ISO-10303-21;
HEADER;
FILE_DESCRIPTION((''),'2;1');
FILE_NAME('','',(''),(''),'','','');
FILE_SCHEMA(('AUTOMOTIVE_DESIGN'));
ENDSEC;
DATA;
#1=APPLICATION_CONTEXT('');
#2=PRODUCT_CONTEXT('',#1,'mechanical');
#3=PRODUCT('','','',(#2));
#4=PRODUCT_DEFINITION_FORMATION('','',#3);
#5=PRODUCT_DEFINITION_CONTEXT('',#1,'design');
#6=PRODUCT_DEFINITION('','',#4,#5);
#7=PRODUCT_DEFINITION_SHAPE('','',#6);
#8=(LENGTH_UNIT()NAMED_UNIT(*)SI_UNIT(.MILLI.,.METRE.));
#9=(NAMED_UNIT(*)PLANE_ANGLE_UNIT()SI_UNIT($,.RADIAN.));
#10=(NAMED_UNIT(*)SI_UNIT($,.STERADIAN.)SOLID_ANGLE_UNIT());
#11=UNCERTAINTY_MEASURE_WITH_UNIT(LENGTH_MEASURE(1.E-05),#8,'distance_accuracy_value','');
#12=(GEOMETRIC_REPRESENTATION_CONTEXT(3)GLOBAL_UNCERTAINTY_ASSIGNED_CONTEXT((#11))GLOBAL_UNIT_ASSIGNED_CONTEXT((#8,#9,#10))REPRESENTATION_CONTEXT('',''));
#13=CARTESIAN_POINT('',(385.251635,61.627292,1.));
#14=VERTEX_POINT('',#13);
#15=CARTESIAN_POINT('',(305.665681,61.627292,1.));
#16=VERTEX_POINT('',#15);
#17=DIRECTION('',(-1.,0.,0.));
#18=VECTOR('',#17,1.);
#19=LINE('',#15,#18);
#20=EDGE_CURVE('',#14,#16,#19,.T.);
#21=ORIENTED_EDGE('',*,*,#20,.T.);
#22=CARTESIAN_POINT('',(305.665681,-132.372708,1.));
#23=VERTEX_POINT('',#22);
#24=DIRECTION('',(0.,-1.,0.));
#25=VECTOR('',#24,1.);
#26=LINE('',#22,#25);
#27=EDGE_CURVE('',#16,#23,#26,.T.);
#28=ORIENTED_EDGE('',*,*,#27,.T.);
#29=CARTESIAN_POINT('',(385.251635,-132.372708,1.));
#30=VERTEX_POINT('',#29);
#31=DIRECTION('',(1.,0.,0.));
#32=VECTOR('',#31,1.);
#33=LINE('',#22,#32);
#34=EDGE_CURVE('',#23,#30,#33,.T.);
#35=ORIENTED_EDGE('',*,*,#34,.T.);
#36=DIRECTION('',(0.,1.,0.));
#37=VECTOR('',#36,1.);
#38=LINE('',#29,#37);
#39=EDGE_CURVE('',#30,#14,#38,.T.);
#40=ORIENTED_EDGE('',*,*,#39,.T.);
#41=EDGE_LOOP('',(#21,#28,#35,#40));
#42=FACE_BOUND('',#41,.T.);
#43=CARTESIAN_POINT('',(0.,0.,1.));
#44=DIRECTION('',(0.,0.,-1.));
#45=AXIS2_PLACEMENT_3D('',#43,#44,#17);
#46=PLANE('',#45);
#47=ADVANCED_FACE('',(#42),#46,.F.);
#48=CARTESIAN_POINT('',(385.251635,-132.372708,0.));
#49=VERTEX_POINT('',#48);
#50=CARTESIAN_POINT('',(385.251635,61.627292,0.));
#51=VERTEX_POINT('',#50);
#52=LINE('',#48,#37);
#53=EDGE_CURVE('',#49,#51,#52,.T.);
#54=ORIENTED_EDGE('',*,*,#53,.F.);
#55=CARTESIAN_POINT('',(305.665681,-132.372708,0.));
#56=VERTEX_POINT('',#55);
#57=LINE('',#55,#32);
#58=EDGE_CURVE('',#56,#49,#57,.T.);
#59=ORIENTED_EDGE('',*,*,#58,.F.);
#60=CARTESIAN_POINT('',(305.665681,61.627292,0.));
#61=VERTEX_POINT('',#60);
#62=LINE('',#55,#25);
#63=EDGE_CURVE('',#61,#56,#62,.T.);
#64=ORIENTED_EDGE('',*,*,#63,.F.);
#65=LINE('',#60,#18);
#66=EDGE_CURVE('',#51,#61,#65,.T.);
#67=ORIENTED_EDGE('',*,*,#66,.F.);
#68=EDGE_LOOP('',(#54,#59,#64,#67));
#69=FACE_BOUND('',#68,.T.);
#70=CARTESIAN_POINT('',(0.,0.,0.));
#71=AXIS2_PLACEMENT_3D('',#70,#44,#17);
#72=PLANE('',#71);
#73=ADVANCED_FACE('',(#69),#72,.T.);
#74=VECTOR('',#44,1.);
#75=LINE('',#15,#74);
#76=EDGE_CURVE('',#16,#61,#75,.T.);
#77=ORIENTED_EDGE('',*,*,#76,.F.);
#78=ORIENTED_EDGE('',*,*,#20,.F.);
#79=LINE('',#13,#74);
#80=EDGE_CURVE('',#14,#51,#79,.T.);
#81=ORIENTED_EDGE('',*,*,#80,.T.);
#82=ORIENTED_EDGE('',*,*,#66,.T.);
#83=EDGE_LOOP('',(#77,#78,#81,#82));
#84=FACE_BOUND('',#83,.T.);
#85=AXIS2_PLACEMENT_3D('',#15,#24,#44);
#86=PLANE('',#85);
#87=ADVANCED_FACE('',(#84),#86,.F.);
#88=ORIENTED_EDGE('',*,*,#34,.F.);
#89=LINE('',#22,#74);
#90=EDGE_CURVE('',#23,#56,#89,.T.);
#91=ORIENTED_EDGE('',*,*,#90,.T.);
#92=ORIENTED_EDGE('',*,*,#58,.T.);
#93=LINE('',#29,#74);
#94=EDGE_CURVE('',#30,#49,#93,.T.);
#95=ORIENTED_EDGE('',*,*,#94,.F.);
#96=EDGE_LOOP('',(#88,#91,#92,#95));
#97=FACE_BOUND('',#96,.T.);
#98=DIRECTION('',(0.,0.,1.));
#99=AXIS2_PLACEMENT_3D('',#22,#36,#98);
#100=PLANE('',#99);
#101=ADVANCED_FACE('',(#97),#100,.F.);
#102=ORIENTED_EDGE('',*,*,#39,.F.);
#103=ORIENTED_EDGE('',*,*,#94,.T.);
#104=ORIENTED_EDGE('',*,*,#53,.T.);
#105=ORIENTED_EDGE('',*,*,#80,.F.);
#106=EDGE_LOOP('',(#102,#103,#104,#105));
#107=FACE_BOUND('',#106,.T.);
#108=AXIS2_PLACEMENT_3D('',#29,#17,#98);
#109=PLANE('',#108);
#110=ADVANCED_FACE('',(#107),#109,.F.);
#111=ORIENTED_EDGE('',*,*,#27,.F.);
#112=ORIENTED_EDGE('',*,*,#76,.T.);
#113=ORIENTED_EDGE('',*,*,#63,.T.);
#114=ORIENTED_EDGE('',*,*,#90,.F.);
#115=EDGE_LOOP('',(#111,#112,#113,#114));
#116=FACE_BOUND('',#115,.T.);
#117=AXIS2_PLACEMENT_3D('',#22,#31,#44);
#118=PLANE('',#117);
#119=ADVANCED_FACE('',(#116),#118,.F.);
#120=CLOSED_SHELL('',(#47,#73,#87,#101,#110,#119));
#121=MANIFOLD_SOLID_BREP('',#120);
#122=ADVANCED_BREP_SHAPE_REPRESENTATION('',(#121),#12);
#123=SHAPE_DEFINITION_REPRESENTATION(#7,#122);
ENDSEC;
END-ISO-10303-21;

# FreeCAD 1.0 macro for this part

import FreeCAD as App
import Part
import Sketcher

doc = App.newDocument("Part")
body = doc.addObject("PartDesign::Body", "Body")

# Sketch on XY plane
sketch1 = body.newObject("Sketcher::SketchObject", "Sketch")
sketch1.AttachmentSupport = (doc.getObject("XY_Plane"), [""])
sketch1.MapMode = "FlatFace"
sketch1.addGeometry(Part.LineSegment(App.Vector(305.665681, 61.627292, 0), App.Vector(305.665681, -132.372708, 0)), False)
sketch1.addGeometry(Part.LineSegment(App.Vector(305.665681, -132.372708, 0), App.Vector(385.251635, -132.372708, 0)), False)
sketch1.addGeometry(Part.LineSegment(App.Vector(385.251635, -132.372708, 0), App.Vector(385.251635, 61.627292, 0)), False)
sketch1.addGeometry(Part.LineSegment(App.Vector(385.251635, 61.627292, 0), App.Vector(305.665681, 61.627292, 0)), False)
sketch1.addConstraint(Sketcher.Constraint("Coincident", 0, 2, 1, 1))
sketch1.addConstraint(Sketcher.Constraint("Coincident", 1, 2, 2, 1))
sketch1.addConstraint(Sketcher.Constraint("Coincident", 2, 2, 3, 1))
sketch1.addConstraint(Sketcher.Constraint("Coincident", 3, 2, 0, 1))
sketch1.addConstraint(Sketcher.Constraint("Vertical", 0))
sketch1.addConstraint(Sketcher.Constraint("Horizontal", 1))
sketch1.addConstraint(Sketcher.Constraint("Vertical", 2))
sketch1.addConstraint(Sketcher.Constraint("Horizontal", 3))
sketch1.addConstraint(Sketcher.Constraint("DistanceY", 0, 2, 0, 1, 194.0))
sketch1.addConstraint(Sketcher.Constraint("DistanceX", 1, 1, 1, 2, 79.585954))
sketch1.addConstraint(Sketcher.Constraint("DistanceX", -1, 1, 0, 2, 305.665681))
sketch1.addConstraint(Sketcher.Constraint("DistanceY", 0, 2, -1, 1, 132.372708))
pad1 = body.newObject("PartDesign::Pad", "Pad")
pad1.Profile = sketch1
pad1.Length = 1

doc.recompute()
